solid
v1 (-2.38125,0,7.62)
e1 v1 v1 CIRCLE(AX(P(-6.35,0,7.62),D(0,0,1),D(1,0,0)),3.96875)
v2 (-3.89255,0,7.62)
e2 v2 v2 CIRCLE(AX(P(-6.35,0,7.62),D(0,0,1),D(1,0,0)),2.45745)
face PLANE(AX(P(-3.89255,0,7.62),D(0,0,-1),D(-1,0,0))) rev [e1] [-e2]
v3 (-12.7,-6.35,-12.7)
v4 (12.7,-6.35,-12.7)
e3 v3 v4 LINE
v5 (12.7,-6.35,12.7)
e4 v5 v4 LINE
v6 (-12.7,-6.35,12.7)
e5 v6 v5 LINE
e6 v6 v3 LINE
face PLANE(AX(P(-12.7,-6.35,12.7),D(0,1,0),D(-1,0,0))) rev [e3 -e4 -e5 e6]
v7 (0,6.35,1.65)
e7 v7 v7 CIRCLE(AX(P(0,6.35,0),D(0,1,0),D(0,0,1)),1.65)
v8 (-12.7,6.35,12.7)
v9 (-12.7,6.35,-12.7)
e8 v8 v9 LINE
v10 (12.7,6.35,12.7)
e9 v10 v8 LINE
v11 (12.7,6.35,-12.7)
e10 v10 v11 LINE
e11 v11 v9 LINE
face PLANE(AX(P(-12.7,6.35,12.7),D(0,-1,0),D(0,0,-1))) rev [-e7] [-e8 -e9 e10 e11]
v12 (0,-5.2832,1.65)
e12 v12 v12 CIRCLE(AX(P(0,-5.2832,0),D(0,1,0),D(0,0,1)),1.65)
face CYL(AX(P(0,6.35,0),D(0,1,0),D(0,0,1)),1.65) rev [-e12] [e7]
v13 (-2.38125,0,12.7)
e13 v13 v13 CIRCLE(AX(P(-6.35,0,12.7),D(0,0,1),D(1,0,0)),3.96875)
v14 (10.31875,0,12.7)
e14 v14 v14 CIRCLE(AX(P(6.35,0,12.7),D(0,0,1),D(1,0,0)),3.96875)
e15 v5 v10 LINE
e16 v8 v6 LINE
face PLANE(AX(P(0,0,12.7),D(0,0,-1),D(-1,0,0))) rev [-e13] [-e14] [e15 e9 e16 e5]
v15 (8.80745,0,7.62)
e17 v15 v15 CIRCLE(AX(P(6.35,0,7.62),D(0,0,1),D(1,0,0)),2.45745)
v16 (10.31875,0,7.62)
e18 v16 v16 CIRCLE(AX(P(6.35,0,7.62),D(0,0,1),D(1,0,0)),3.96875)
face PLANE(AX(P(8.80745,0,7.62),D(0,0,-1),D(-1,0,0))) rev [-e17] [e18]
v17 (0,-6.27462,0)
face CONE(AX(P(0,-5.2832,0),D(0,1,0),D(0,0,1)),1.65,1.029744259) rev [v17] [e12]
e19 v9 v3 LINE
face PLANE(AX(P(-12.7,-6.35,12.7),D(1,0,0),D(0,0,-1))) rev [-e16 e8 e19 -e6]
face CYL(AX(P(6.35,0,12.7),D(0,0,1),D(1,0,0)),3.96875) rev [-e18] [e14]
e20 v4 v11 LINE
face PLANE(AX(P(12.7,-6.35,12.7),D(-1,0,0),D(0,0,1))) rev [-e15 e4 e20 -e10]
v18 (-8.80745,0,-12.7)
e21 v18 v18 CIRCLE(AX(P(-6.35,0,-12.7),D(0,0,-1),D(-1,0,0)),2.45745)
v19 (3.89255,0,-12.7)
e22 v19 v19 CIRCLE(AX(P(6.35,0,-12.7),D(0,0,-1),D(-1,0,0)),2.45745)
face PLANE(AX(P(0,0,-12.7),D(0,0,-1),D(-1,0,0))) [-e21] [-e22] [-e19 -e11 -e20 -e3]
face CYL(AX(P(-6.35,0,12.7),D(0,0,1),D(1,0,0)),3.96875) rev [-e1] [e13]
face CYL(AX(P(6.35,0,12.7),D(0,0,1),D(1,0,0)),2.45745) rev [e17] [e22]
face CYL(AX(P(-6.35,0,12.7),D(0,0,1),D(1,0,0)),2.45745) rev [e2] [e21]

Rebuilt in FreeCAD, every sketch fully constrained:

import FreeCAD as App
import Part
import Sketcher
Q = App.Units.Quantity


def add_polygon(sketch, points):
    """Adds a closed chain of lines whose ends are joined by coincident constraints."""
    first, n = sketch.GeometryCount, len(points)
    for a, b in zip(points, points[1:] + points[:1]):
        sketch.addGeometry(Part.LineSegment(App.Vector(*a, 0), App.Vector(*b, 0)), False)
    for i in range(n):
        sketch.addConstraint(Sketcher.Constraint("Coincident", first + i, 2, first + (i + 1) % n, 1))

doc = App.newDocument("Part")
body = doc.addObject("PartDesign::Body", "Body")

# Sketch on XY plane
sketch1 = body.newObject("Sketcher::SketchObject", "Sketch")
sketch1.AttachmentSupport = (doc.getObject("XY_Plane"), [""])
sketch1.MapMode = "FlatFace"
add_polygon(sketch1, [(-13, 6), (-13, -6), (13, -6), (13, 6)])  # lines 0-3
sketch1.addConstraint([
    Sketcher.Constraint("Vertical", 0),
    Sketcher.Constraint("Horizontal", 1),
    Sketcher.Constraint("Vertical", 2),
    Sketcher.Constraint("Horizontal", 3),
    Sketcher.Constraint("Symmetric", 0, 2, 2, 2, -1, 1),
    Sketcher.Constraint("DistanceX", 1, 1, 1, 2, Q("1 in")),
    Sketcher.Constraint("DistanceY", 0, 2, 0, 1, Q("0.5 in")),
])
pad1 = body.newObject("PartDesign::Pad", "Pad")
pad1.Profile = sketch1
pad1.Length = Q("1 in")
pad1.Midplane = True

# Sketch on XY plane
sketch2 = body.newObject("Sketcher::SketchObject", "Sketch001")
sketch2.AttachmentSupport = (doc.getObject("XY_Plane"), [""])
sketch2.MapMode = "FlatFace"
sketch2.AttachmentOffset = App.Placement(App.Vector(0, 0, 0.5 * 25.4), App.Rotation())
sketch2.addGeometry([
    Part.Circle(App.Vector(-6.3, 0, 0), App.Vector(0, 0, 1), 2.5),
    Part.Circle(App.Vector(6.3, 0, 0), App.Vector(0, 0, 1), 2.5),
], False)
sketch2.addConstraint([
    Sketcher.Constraint("Equal", 0, 1),
    Sketcher.Constraint("Symmetric", 0, 3, 1, 3, -1, 1),
    Sketcher.Constraint("PointOnObject", 0, 3, -1),
    Sketcher.Constraint("Diameter", 0, Q("0.1935 in")),
    Sketcher.Constraint("DistanceX", 0, 3, 1, 3, Q("0.5 in")),
])
doc.recompute()
hole = body.newObject("PartDesign::Hole", "Hole")
hole.Profile = sketch2
hole.ThreadType = "None"
hole.Diameter = Q("0.1935 in")
hole.DepthType = "ThroughAll"
hole.HoleCutType = "Counterbore"
hole.HoleCutDiameter = Q("0.3125 in")
hole.HoleCutDepth = Q("0.2 in")

# Sketch on XZ plane
sketch3 = body.newObject("Sketcher::SketchObject", "Sketch002")
sketch3.AttachmentSupport = (doc.getObject("XZ_Plane"), [""])
sketch3.MapMode = "FlatFace"
sketch3.AttachmentOffset = App.Placement(App.Vector(0, 0, -0.25 * 25.4), App.Rotation())
sketch3.addGeometry(Part.Circle(App.Vector(0, 0, 0), App.Vector(0, 0, 1), 1.6), False)
sketch3.addConstraint([
    Sketcher.Constraint("Coincident", 0, 3, -1, 1),
    Sketcher.Constraint("Diameter", 0, Q("3.3 mm")),
])
doc.recompute()
hole2 = body.newObject("PartDesign::Hole", "Hole001")
hole2.Profile = sketch3
hole2.ThreadType = "None"
hole2.Diameter = 3.3
hole2.DepthType = "Dimension"
hole2.Depth = Q("0.458 in")
hole2.DrillPoint = "Angled"
hole2.DrillPointAngle = 118
hole2.Reversed = True

doc.recompute()
